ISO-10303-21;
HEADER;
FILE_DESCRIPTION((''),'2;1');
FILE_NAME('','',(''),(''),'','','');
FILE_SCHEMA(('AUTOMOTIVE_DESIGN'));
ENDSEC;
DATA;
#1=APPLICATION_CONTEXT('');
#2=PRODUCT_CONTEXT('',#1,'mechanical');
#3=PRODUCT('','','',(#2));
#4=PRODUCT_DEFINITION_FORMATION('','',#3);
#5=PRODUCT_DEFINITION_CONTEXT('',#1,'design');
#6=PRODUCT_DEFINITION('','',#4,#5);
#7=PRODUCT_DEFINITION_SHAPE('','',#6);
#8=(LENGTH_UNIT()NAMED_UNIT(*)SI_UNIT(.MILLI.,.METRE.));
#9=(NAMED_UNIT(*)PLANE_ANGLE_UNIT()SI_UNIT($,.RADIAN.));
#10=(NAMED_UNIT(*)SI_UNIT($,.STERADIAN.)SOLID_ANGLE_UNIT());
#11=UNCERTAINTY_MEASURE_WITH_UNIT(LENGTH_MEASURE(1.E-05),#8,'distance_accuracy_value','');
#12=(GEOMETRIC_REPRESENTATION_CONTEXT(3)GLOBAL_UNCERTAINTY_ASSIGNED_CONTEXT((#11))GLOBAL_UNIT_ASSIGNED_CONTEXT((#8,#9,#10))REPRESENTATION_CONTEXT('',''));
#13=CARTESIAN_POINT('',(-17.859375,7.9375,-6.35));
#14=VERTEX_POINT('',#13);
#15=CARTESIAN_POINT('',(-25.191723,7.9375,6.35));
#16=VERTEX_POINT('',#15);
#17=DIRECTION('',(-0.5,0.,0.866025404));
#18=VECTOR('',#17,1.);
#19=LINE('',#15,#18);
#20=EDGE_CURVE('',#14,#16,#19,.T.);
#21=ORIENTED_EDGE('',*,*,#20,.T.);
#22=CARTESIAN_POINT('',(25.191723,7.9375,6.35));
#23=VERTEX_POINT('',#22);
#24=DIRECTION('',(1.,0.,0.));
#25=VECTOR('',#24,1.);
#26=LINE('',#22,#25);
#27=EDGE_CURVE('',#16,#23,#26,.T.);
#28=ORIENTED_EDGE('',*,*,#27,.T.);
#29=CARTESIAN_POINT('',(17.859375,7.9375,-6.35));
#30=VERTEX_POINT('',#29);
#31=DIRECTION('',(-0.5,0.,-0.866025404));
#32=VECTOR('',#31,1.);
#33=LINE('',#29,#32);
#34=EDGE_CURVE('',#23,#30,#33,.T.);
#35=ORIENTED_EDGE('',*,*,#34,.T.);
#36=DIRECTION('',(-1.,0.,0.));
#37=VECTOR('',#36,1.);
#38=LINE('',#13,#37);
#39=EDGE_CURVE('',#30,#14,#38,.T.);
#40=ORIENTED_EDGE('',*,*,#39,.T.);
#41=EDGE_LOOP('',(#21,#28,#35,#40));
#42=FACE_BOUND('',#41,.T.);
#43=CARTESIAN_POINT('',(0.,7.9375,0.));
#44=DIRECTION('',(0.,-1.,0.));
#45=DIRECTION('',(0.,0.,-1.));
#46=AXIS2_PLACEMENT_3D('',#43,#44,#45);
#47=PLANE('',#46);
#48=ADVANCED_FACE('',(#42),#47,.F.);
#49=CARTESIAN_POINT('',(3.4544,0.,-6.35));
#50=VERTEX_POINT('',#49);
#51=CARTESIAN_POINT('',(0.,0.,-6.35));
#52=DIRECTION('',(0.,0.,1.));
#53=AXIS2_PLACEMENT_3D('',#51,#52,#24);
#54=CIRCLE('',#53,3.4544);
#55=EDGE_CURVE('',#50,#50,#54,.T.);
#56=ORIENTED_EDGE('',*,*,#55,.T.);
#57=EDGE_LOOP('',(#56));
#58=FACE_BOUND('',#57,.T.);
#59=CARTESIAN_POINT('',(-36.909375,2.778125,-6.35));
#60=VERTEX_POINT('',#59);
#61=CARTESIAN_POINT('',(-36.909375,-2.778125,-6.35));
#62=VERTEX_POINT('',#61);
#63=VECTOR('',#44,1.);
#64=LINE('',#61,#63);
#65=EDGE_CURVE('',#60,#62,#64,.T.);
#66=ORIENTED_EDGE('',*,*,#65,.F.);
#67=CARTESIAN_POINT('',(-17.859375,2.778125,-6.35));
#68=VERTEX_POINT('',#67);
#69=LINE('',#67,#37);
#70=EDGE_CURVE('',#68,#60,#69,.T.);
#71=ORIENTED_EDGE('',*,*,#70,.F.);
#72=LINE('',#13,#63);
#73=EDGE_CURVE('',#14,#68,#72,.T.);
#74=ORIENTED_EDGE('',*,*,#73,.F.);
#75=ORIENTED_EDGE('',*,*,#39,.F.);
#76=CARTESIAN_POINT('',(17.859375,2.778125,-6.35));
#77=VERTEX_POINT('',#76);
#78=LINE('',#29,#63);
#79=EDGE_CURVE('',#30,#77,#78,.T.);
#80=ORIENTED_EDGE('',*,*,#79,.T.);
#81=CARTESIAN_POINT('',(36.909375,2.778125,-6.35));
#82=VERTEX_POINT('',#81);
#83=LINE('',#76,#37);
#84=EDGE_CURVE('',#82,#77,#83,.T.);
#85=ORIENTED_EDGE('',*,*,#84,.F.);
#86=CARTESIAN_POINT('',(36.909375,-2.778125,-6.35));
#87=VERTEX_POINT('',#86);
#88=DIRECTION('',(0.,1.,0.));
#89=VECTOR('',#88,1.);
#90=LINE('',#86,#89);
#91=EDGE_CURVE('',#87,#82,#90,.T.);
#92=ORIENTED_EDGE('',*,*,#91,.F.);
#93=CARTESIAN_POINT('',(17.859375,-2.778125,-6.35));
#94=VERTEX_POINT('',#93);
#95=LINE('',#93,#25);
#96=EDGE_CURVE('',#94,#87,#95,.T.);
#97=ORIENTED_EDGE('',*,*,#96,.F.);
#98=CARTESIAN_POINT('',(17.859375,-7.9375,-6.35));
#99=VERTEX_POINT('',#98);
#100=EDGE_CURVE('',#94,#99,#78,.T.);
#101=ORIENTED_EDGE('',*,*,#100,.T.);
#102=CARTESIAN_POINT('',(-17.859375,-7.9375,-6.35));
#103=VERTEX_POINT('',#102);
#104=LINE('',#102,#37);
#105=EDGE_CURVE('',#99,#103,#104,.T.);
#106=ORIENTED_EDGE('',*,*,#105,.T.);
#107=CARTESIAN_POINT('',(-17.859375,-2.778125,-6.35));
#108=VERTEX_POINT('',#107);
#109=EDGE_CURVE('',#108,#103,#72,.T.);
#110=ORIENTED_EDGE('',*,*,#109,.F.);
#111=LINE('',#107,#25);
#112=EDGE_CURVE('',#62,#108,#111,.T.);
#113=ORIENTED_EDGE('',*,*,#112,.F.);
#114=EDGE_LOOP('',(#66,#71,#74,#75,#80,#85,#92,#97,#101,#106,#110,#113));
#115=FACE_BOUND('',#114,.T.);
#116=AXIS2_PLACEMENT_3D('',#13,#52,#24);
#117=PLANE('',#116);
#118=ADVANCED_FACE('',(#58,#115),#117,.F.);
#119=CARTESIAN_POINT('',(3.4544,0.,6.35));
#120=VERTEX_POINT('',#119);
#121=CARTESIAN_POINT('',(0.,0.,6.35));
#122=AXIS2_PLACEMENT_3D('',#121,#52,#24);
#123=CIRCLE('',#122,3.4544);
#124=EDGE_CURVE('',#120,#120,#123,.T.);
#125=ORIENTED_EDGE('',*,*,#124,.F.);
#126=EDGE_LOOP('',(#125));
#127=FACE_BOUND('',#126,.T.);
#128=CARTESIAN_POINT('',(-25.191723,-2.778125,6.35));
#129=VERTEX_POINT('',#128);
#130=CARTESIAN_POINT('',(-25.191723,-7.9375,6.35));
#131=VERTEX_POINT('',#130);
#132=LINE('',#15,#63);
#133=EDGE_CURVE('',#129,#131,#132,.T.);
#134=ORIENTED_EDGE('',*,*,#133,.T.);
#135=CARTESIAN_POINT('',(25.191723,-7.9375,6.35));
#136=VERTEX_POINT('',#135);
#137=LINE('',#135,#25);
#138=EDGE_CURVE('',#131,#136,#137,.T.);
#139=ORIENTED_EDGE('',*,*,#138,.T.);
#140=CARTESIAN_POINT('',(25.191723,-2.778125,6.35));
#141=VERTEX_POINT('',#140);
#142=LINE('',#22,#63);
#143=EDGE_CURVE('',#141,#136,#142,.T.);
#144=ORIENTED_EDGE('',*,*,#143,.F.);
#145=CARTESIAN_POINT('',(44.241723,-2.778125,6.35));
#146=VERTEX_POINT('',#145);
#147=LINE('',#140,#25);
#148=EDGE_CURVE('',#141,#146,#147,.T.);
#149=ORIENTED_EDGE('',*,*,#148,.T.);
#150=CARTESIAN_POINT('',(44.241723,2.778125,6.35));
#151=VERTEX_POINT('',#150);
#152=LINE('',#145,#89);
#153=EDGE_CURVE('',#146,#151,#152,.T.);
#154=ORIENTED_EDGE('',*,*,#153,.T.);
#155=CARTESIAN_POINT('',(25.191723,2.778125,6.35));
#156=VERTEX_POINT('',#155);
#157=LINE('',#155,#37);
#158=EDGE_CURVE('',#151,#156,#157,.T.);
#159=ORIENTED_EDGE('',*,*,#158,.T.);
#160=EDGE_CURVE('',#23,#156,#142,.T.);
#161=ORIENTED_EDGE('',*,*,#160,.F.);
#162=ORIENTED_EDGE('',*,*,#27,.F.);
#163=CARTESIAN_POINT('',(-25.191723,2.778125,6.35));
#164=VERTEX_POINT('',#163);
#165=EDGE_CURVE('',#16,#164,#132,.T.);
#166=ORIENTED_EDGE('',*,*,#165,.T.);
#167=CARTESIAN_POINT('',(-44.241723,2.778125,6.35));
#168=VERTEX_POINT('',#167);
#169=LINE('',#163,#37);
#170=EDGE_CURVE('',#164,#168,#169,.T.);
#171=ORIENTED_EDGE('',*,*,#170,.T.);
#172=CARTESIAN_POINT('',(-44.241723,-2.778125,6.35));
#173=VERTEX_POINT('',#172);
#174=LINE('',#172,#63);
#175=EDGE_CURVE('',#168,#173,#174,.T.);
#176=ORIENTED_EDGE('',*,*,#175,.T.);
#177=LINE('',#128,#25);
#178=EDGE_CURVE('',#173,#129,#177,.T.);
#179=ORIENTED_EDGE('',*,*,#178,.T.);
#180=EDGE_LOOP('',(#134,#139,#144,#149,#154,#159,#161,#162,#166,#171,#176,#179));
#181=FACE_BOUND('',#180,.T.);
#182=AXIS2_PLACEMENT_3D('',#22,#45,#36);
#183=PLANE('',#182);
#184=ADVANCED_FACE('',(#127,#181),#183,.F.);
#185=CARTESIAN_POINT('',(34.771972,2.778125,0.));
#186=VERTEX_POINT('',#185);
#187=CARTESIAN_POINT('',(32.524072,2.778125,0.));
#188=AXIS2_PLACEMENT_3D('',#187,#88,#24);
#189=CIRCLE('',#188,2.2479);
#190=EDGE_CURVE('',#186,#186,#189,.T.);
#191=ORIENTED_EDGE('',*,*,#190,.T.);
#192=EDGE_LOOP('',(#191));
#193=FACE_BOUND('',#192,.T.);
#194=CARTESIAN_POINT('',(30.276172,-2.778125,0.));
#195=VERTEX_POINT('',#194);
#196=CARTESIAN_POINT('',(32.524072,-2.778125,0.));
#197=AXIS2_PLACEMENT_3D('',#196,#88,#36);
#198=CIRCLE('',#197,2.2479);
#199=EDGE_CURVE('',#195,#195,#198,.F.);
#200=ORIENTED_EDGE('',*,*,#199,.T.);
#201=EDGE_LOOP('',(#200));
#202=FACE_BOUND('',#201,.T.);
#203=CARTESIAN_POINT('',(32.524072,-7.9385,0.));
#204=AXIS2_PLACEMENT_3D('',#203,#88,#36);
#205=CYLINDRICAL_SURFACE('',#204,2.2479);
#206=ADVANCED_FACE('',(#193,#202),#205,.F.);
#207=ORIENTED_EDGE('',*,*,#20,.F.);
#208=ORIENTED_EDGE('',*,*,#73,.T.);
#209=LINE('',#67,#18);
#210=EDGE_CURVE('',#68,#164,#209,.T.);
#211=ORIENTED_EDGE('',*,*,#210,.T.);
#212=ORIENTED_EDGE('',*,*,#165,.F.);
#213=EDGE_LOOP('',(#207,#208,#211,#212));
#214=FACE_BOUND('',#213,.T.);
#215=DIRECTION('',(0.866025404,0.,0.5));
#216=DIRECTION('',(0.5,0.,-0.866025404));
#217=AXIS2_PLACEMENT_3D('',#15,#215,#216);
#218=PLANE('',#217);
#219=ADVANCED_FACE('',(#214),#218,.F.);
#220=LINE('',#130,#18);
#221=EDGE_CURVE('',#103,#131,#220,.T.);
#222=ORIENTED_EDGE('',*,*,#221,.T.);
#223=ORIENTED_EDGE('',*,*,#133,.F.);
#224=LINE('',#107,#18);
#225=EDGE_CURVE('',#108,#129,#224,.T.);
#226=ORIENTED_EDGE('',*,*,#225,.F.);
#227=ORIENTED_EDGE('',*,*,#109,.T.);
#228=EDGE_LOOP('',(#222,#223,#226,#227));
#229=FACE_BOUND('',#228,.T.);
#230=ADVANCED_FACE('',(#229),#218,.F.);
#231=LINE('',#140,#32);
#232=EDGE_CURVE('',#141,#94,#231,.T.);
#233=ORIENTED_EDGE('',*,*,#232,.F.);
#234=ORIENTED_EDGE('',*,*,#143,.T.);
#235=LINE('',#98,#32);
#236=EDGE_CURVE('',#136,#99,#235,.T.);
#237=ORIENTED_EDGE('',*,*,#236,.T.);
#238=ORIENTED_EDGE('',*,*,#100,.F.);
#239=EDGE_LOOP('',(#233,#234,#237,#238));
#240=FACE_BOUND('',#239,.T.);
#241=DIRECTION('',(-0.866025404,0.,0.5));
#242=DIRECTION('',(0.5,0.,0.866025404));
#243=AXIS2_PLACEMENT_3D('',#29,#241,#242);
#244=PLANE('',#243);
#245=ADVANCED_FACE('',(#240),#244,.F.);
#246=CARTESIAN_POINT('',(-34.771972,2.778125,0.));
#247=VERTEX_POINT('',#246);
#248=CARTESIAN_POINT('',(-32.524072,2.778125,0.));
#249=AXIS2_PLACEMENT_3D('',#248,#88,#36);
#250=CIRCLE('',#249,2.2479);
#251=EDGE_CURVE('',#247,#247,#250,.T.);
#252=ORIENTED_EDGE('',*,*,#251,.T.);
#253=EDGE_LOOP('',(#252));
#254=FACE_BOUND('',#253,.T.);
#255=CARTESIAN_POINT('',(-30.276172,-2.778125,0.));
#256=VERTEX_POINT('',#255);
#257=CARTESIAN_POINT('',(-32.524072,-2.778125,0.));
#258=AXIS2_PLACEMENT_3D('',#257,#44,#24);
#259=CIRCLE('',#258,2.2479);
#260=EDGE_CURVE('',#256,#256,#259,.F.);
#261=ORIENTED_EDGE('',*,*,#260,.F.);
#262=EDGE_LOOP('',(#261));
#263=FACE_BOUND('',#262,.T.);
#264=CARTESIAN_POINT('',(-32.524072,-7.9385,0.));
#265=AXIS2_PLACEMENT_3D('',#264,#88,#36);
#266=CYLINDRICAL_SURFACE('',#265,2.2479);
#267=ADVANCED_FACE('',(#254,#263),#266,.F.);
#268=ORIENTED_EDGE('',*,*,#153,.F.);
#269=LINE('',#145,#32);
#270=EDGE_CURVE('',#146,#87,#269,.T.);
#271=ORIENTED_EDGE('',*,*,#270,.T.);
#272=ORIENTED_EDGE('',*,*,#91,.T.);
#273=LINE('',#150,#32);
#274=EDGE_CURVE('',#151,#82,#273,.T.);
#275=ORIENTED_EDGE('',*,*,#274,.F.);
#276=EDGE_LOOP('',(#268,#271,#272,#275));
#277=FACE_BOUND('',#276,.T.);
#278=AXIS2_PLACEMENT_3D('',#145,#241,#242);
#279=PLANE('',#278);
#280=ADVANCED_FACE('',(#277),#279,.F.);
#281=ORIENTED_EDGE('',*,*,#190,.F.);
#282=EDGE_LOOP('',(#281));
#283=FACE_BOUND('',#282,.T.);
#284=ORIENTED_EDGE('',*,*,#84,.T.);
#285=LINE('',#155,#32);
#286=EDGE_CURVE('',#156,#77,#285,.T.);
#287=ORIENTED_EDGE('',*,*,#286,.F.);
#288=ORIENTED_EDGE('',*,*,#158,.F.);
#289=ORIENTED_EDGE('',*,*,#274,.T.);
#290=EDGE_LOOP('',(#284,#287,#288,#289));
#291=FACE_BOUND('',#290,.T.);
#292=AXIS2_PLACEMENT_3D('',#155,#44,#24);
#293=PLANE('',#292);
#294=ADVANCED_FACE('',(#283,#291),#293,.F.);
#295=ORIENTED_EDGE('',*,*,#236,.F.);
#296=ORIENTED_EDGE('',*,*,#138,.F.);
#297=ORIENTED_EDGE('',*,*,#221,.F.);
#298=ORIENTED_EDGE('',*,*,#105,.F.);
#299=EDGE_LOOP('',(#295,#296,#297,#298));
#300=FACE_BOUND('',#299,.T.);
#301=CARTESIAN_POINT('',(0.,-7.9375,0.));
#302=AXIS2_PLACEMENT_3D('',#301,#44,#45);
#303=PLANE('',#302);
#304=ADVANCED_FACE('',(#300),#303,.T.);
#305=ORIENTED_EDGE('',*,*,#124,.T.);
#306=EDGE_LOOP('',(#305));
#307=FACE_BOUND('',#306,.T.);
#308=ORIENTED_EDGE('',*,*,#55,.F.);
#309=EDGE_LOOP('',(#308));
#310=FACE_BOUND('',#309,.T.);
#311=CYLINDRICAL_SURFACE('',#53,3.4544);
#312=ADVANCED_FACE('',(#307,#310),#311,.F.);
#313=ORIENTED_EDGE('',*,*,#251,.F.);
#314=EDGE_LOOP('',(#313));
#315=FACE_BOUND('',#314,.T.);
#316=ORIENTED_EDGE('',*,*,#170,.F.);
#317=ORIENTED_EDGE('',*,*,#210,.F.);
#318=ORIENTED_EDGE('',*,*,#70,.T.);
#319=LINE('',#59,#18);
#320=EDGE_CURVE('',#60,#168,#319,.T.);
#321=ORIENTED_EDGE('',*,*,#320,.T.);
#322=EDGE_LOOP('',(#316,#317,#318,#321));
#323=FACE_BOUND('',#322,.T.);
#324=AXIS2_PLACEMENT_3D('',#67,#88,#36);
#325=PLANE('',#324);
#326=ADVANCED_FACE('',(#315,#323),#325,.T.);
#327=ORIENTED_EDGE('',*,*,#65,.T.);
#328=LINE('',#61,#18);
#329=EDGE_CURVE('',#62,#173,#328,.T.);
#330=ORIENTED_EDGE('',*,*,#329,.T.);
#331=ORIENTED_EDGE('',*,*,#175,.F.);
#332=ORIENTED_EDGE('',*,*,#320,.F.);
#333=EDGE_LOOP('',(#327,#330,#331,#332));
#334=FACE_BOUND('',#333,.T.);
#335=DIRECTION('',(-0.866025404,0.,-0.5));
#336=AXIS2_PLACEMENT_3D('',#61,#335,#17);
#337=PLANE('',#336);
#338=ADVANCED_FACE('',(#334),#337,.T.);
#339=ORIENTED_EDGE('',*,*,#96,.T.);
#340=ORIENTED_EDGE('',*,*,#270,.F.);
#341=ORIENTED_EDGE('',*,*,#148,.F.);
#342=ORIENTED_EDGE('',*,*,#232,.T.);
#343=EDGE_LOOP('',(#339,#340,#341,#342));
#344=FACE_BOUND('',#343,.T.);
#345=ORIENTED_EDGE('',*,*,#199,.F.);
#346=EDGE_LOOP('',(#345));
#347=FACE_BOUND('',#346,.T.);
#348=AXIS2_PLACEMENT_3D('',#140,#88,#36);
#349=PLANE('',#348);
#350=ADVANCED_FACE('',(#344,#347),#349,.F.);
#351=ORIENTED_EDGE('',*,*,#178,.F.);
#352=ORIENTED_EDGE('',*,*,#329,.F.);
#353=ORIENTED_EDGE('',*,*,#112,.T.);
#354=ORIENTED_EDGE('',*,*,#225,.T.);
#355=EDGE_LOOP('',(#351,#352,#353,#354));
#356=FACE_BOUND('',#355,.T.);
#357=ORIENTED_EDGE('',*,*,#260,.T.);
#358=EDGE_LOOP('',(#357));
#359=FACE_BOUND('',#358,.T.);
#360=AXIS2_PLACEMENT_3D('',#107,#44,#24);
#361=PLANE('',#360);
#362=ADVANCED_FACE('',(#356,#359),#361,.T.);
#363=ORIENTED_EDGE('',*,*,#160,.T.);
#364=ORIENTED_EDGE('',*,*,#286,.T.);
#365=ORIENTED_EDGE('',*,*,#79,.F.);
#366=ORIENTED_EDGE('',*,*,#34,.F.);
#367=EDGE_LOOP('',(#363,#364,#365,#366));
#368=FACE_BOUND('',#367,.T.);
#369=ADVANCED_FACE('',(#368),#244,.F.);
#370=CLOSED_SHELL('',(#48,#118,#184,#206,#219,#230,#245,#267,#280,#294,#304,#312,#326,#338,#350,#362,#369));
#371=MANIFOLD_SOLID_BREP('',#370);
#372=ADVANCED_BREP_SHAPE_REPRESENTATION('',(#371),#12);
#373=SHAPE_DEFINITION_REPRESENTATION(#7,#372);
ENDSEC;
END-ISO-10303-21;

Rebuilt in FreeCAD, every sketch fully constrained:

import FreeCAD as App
import Part
import Sketcher
from FreeCAD import Vector
Q = App.Units.Quantity

doc = App.newDocument("Part")
params = doc.addObject("Spreadsheet::Sheet", "Params")
for row, (alias, value) in enumerate([
    ("sketch1_width", "1.40625 in"),
    ("pad1_length", "0.625 in"),
    ("sketch2_diameter", "0.272 in"),
    ("sketch3_width", "0.75 in"),
    ("sketch3_height", "0.21875 in"),
    ("sketch5_width", "0.75 in"),
    ("sketch5_height", "0.21875 in"),
    ("sketch7_diameter", "0.177 in"),
    ("sketch8_diameter", "0.177 in"),
], start=1):
    params.set(f"A{row}", alias)
    params.set(f"B{row}", "=" + value)
    params.setAlias(f"B{row}", alias)

body = doc.addObject("PartDesign::Body", "Body")

# Sketch on XZ plane
sketch1 = doc.addObject("Sketcher::SketchObject", "Sketch")
body.addObject(sketch1)
sketch1.AttachmentSupport = (doc.XZ_Plane, [""])
sketch1.MapMode = "FlatFace"
sketch1.addGeometry([
    Part.LineSegment(Vector(18, -6, 0), Vector(-18, -6, 0)),
    Part.LineSegment(Vector(-18, -6, 0), Vector(-25, 6, 0)),
    Part.LineSegment(Vector(-25, 6, 0), Vector(25, 6, 0)),
    Part.LineSegment(Vector(25, 6, 0), Vector(18, -6, 0)),
], False)
sketch1.addConstraint([
    Sketcher.Constraint("Coincident", 0, 2, 1, 1),
    Sketcher.Constraint("Coincident", 1, 2, 2, 1),
    Sketcher.Constraint("Coincident", 2, 2, 3, 1),
    Sketcher.Constraint("Coincident", 3, 2, 0, 1),
    Sketcher.Constraint("Horizontal", 0),
    Sketcher.Constraint("Horizontal", 2),
    Sketcher.Constraint("Equal", 1, 3),
    Sketcher.Constraint("Angle", 1, Q("120 deg")),
    Sketcher.Constraint("DistanceY", 0, 2, 1, 2, Q("0.5 in")),
    Sketcher.Constraint("DistanceX", 0, 2, 0, 1, Q("1.40625 in")),
    Sketcher.Constraint("DistanceY", 0, 2, -1, 1, Q("0.25 in")),
    Sketcher.Constraint("DistanceX", 0, 2, -1, 1, Q("0.703125 in")),
])
sketch1.setExpression("Constraints[9]", "Params.sketch1_width")
pad1 = doc.addObject("PartDesign::Pad", "Pad")
body.addObject(pad1)
pad1.Profile = sketch1
pad1.setExpression("Length", "Params.pad1_length")
pad1.Midplane = True

# Sketch on XY plane
sketch2 = doc.addObject("Sketcher::SketchObject", "Sketch001")
body.addObject(sketch2)
sketch2.AttachmentSupport = (doc.XY_Plane, [""])
sketch2.MapMode = "FlatFace"
sketch2.AttachmentOffset = App.Placement(Vector(0, 0, 0.25 * 25.4), App.Rotation())
sketch2.addGeometry(Part.Circle(Vector(0, 0, 0), Vector(0, 0, 1), 3.5), False)
sketch2.addConstraint([
    Sketcher.Constraint("Coincident", 0, 3, -1, 1),
    Sketcher.Constraint("Diameter", 0, Q("0.272 in")),
])
sketch2.setExpression("Constraints[1]", "Params.sketch2_diameter")
pocket1 = doc.addObject("PartDesign::Pocket", "Pocket")
body.addObject(pocket1)
pocket1.Profile = sketch2
pocket1.Type = "ThroughAll"

# Sketch on XY plane
sketch3 = doc.addObject("Sketcher::SketchObject", "Sketch002")
body.addObject(sketch3)
sketch3.AttachmentSupport = (doc.XY_Plane, [""])
sketch3.MapMode = "FlatFace"
sketch3.AttachmentOffset = App.Placement(Vector(0, 0, 0.25 * 25.4), App.Rotation())
sketch3.addGeometry([
    Part.LineSegment(Vector(-44, 3, 0), Vector(-44, -3, 0)),
    Part.LineSegment(Vector(-44, -3, 0), Vector(-25, -3, 0)),
    Part.LineSegment(Vector(-25, -3, 0), Vector(-25, 3, 0)),
    Part.LineSegment(Vector(-25, 3, 0), Vector(-44, 3, 0)),
], False)
sketch3.addConstraint([
    Sketcher.Constraint("Coincident", 0, 2, 1, 1),
    Sketcher.Constraint("Coincident", 1, 2, 2, 1),
    Sketcher.Constraint("Coincident", 2, 2, 3, 1),
    Sketcher.Constraint("Coincident", 3, 2, 0, 1),
    Sketcher.Constraint("Vertical", 0),
    Sketcher.Constraint("Horizontal", 1),
    Sketcher.Constraint("Vertical", 2),
    Sketcher.Constraint("Horizontal", 3),
    Sketcher.Constraint("DistanceX", 1, 1, 1, 2, Q("0.75 in")),
    Sketcher.Constraint("DistanceY", 0, 2, 0, 1, Q("0.21875 in")),
    Sketcher.Constraint("DistanceY", 0, 2, -1, 1, Q("0.109375 in")),
    Sketcher.Constraint("DistanceX", 0, 2, -1, 1, Q("1.7418001 in")),
])
sketch3.setExpression("Constraints[8]", "Params.sketch3_width")
sketch3.setExpression("Constraints[9]", "Params.sketch3_height")

# Sketch on an angled plane
sketch4 = doc.addObject("Sketcher::SketchObject", "Sketch003")
body.addObject(sketch4)
sketch4.Placement = App.Placement(Vector(-16.144162, 0, -9.320836), App.Rotation(Vector(-0.5, 0, 0.866025404), Vector(0, 1, 0), Vector(-0.866025404, 0, -0.5), "ZXY"))
sketch4.addGeometry(Part.LineSegment(Vector(3, 8, 0), Vector(18, 8, 0)), False)
sketch4.addConstraint([
    Sketcher.Constraint("Horizontal", 0),
    Sketcher.Constraint("DistanceY", -1, 1, 0, 1, Q("0.3125 in")),
    Sketcher.Constraint("DistanceX", 0, 1, 0, 2, Q("14.664697 mm")),
    Sketcher.Constraint("DistanceX", -1, 1, 0, 1, Q("3.430426 mm")),
])
doc.recompute()

additivepipe = doc.addObject("PartDesign::AdditivePipe", "AdditivePipe")
body.addObject(additivepipe)
additivepipe.Profile = sketch3
additivepipe.Spine = (sketch4, ["Edge1"])

# Sketch on XY plane
sketch5 = doc.addObject("Sketcher::SketchObject", "Sketch004")
body.addObject(sketch5)
sketch5.AttachmentSupport = (doc.XY_Plane, [""])
sketch5.MapMode = "FlatFace"
sketch5.AttachmentOffset = App.Placement(Vector(0, 0, 0.25 * 25.4), App.Rotation())
sketch5.addGeometry([
    Part.LineSegment(Vector(25, 3, 0), Vector(25, -3, 0)),
    Part.LineSegment(Vector(25, -3, 0), Vector(44, -3, 0)),
    Part.LineSegment(Vector(44, -3, 0), Vector(44, 3, 0)),
    Part.LineSegment(Vector(44, 3, 0), Vector(25, 3, 0)),
], False)
sketch5.addConstraint([
    Sketcher.Constraint("Coincident", 0, 2, 1, 1),
    Sketcher.Constraint("Coincident", 1, 2, 2, 1),
    Sketcher.Constraint("Coincident", 2, 2, 3, 1),
    Sketcher.Constraint("Coincident", 3, 2, 0, 1),
    Sketcher.Constraint("Vertical", 0),
    Sketcher.Constraint("Horizontal", 1),
    Sketcher.Constraint("Vertical", 2),
    Sketcher.Constraint("Horizontal", 3),
    Sketcher.Constraint("DistanceX", 1, 1, 1, 2, Q("0.75 in")),
    Sketcher.Constraint("DistanceY", 0, 2, 0, 1, Q("0.21875 in")),
    Sketcher.Constraint("DistanceY", 0, 2, -1, 1, Q("0.109375 in")),
    Sketcher.Constraint("DistanceX", -1, 1, 0, 2, Q("0.9918001 in")),
])
sketch5.setExpression("Constraints[8]", "Params.sketch5_width")
sketch5.setExpression("Constraints[9]", "Params.sketch5_height")

# Sketch on an angled plane
sketch6 = doc.addObject("Sketcher::SketchObject", "Sketch005")
body.addObject(sketch6)
sketch6.Placement = App.Placement(Vector(16.144162, 0, -9.320836), App.Rotation(Vector(-0.5, 0, -0.866025404), Vector(0, 1, 0), Vector(0.866025404, 0, -0.5), "ZXY"))
sketch6.addGeometry(Part.LineSegment(Vector(-18, 8, 0), Vector(-3, 8, 0)), False)
sketch6.addConstraint([
    Sketcher.Constraint("Horizontal", 0),
    Sketcher.Constraint("DistanceY", -1, 1, 0, 1, Q("0.3125 in")),
    Sketcher.Constraint("DistanceX", 0, 1, 0, 2, Q("14.664697 mm")),
    Sketcher.Constraint("DistanceX", 0, 1, -1, 1, Q("18.095123 mm")),
])
doc.recompute()

additivepipe2 = doc.addObject("PartDesign::AdditivePipe", "AdditivePipe001")
body.addObject(additivepipe2)
additivepipe2.Profile = sketch5
additivepipe2.Spine = (sketch6, ["Edge1"])

# Sketch on XZ plane
sketch7 = doc.addObject("Sketcher::SketchObject", "Sketch006")
body.addObject(sketch7)
sketch7.AttachmentSupport = (doc.XZ_Plane, [""])
sketch7.MapMode = "FlatFace"
sketch7.AttachmentOffset = App.Placement(Vector(0, 0, -0.109375 * 25.4), App.Rotation())
sketch7.addGeometry(Part.Circle(Vector(-32.5, 0, 0), Vector(0, 0, 1), 2.2), False)
sketch7.addConstraint([
    Sketcher.Constraint("PointOnObject", 0, 3, -1),
    Sketcher.Constraint("Diameter", 0, Q("0.177 in")),
    Sketcher.Constraint("DistanceX", 0, 3, -1, 1, Q("32.524072 mm")),
])
sketch7.setExpression("Constraints[1]", "Params.sketch7_diameter")
pocket2 = doc.addObject("PartDesign::Pocket", "Pocket001")
body.addObject(pocket2)
pocket2.Profile = sketch7
pocket2.Type = "UpToFirst"
pocket2.Reversed = True

# Sketch on XZ plane
sketch8 = doc.addObject("Sketcher::SketchObject", "Sketch007")
body.addObject(sketch8)
sketch8.AttachmentSupport = (doc.XZ_Plane, [""])
sketch8.MapMode = "FlatFace"
sketch8.AttachmentOffset = App.Placement(Vector(0, 0, -0.109375 * 25.4), App.Rotation())
sketch8.addGeometry(Part.Circle(Vector(32.5, 0, 0), Vector(0, 0, 1), 2.2), False)
sketch8.addConstraint([
    Sketcher.Constraint("PointOnObject", 0, 3, -1),
    Sketcher.Constraint("Diameter", 0, Q("0.177 in")),
    Sketcher.Constraint("DistanceX", -1, 1, 0, 3, Q("32.524072 mm")),
])
sketch8.setExpression("Constraints[1]", "Params.sketch8_diameter")
pocket3 = doc.addObject("PartDesign::Pocket", "Pocket002")
body.addObject(pocket3)
pocket3.Profile = sketch8
pocket3.Type = "UpToFirst"
pocket3.Reversed = True

doc.recompute()
